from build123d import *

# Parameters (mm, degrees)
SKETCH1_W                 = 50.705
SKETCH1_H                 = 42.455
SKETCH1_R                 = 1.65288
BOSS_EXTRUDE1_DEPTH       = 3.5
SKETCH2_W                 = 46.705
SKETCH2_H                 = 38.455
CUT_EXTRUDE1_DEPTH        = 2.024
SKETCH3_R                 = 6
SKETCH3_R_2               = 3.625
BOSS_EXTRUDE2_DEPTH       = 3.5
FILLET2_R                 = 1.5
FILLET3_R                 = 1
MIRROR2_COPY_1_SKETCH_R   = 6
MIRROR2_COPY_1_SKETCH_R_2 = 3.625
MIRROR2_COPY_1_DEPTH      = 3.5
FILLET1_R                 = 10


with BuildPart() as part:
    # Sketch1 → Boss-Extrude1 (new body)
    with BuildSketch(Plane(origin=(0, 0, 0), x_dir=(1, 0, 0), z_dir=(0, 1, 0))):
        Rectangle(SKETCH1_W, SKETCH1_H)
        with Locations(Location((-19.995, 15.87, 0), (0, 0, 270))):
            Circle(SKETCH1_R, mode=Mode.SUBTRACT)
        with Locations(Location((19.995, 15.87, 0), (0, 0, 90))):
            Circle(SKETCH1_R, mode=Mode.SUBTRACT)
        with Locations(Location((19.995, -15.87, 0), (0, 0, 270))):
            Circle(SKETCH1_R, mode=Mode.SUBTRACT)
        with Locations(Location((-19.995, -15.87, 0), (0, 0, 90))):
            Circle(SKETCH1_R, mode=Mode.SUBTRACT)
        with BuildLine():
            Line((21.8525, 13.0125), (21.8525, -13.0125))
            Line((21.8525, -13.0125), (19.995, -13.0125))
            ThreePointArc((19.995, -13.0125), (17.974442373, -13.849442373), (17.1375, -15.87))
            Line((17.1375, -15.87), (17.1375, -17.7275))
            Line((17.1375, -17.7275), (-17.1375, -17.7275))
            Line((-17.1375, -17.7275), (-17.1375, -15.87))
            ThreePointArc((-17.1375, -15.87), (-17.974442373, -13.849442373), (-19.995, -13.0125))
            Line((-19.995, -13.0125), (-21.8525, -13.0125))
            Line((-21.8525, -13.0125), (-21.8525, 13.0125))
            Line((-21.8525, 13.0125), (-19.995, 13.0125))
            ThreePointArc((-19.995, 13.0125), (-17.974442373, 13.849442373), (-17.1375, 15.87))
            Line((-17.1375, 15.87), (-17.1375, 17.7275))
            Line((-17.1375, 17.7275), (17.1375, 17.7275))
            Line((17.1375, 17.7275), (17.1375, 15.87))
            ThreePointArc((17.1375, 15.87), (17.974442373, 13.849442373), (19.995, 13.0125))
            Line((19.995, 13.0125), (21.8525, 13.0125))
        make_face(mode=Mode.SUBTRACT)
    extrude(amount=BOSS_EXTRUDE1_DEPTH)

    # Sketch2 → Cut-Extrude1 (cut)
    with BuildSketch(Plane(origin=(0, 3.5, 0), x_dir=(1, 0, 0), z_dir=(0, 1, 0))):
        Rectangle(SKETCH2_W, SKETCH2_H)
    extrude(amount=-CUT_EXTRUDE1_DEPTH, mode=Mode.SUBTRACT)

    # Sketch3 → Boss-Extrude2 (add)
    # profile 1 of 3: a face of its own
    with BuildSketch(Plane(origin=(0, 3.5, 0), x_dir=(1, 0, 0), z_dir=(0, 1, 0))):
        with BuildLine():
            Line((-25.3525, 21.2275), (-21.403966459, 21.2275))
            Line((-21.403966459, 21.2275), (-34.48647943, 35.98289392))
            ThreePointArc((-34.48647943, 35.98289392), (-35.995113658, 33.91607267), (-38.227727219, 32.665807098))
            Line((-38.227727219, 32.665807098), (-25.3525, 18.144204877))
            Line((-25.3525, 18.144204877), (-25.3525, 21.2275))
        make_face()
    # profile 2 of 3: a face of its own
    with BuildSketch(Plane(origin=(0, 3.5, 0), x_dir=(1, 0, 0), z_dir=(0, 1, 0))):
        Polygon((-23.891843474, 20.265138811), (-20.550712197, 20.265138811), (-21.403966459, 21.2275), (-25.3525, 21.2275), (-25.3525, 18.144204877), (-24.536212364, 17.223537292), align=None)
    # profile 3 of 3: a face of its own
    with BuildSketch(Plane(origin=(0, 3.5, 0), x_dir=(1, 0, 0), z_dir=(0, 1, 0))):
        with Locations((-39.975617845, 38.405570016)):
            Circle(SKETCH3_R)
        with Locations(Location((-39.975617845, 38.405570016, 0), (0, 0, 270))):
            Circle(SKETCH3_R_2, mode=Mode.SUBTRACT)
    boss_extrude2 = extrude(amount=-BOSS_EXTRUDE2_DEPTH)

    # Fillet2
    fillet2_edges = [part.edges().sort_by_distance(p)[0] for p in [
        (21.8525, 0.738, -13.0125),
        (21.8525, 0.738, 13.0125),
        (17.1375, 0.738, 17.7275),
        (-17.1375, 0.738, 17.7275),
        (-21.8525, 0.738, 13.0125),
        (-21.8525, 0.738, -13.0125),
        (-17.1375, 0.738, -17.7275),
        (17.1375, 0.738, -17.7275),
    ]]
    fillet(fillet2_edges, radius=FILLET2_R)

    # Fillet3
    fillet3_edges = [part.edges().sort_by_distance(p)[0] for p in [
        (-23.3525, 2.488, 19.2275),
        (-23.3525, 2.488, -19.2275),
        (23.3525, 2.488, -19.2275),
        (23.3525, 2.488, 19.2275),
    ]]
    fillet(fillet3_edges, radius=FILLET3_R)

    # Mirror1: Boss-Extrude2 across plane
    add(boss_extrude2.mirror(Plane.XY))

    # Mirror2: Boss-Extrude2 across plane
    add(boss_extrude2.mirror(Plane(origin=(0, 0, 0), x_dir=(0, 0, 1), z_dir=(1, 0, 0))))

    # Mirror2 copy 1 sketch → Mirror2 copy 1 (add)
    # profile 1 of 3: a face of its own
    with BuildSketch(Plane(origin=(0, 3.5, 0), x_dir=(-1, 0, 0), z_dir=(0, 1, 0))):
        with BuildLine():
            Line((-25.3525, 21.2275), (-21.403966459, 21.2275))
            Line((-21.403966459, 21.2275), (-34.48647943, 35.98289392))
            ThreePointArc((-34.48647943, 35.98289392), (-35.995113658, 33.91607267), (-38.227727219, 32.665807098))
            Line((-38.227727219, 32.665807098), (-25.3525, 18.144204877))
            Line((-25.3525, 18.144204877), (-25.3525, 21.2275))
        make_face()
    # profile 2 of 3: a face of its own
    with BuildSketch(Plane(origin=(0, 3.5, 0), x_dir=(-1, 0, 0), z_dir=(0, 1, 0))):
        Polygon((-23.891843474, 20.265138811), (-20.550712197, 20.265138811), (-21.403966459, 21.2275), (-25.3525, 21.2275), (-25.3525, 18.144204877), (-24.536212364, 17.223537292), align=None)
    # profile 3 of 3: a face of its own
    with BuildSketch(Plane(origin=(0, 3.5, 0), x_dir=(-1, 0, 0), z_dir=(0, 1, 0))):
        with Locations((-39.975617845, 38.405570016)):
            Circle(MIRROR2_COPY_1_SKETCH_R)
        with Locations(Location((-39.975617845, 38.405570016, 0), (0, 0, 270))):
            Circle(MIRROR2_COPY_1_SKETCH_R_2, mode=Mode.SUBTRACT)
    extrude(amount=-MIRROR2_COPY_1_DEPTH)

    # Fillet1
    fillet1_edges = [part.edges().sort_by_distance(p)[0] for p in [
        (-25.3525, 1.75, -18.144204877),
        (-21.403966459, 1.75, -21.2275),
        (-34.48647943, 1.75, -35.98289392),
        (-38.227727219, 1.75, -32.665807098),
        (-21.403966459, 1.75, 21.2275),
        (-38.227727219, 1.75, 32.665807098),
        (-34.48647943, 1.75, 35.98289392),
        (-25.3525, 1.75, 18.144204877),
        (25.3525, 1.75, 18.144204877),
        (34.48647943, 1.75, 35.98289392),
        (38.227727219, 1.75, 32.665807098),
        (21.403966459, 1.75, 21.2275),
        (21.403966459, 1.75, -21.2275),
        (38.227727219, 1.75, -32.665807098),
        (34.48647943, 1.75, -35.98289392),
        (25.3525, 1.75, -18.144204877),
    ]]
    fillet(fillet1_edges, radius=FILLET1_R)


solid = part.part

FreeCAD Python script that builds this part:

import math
import FreeCAD as App
import Part
import Sketcher
from FreeCAD import Vector
Q = App.Units.Quantity


def edges_at(feature, points):
    """Names of the edges that pass closest to the given points."""
    edges = feature.Shape.Edges
    near = lambda p: min(range(len(edges)), key=lambda i: edges[i].distToShape(Part.Vertex(*p))[0])
    return sorted({f"Edge{near(p) + 1}" for p in points})


def add_polygon(sketch, points):
    """Adds a closed chain of lines whose ends are joined by coincident constraints."""
    first, n = sketch.GeometryCount, len(points)
    for a, b in zip(points, points[1:] + points[:1]):
        sketch.addGeometry(Part.LineSegment(App.Vector(*a, 0), App.Vector(*b, 0)), False)
    for i in range(n):
        sketch.addConstraint(Sketcher.Constraint("Coincident", first + i, 2, first + (i + 1) % n, 1))

doc = App.newDocument("Part")
params = doc.addObject("Spreadsheet::Sheet", "Params")
for row, (alias, value) in enumerate([
    ("pad1_length", "3.5 mm"),
    ("pocket1_length", "2.024 mm"),
    ("sketch3_radius", "6 mm"),
    ("sketch3_diameter", "7.25 mm"),
    ("pad2_length", "3.5 mm"),
    ("fillet_radius", "1.5 mm"),
    ("fillet2_radius", "1 mm"),
    ("sketch4_radius", "6 mm"),
    ("sketch4_diameter", "7.25 mm"),
    ("pad3_length", "3.5 mm"),
    ("fillet3_radius", "10 mm"),
], start=1):
    params.set(f"A{row}", alias)
    params.set(f"B{row}", "=" + value)
    params.setAlias(f"B{row}", alias)

body = doc.addObject("PartDesign::Body", "Body")

sketch1 = doc.addObject("Sketcher::SketchObject", "Sketch")
body.addObject(sketch1)
sketch1.AttachmentSupport = (doc.XZ_Plane, [""])
sketch1.MapMode = "FlatFace"
add_polygon(sketch1, [(-25.4, -21.2), (-25.4, 21.2), (25.4, 21.2), (25.4, -21.2)])
sketch1.addGeometry(Part.Circle(Vector(-20, 15.9, 0), Vector(0, 0, 1), 1.7), False)
sketch1.addGeometry(Part.Circle(Vector(20, 15.9, 0), Vector(0, 0, 1), 1.7), False)
sketch1.addGeometry(Part.Circle(Vector(-20, -15.9, 0), Vector(0, 0, 1), 1.7), False)
sketch1.addGeometry(Part.LineSegment(Vector(20, -13, 0), Vector(21.9, -13, 0)), False)
sketch1.addGeometry(Part.LineSegment(Vector(21.9, -13, 0), Vector(21.9, 13, 0)), False)
sketch1.addGeometry(Part.LineSegment(Vector(21.9, 13, 0), Vector(20, 13, 0)), False)
sketch1.addGeometry(Part.ArcOfCircle(Part.Circle(Vector(20, 15.9, 0), Vector(0, 0, 1), 2.9), math.radians(-180), math.radians(-90)), False)
sketch1.addGeometry(Part.LineSegment(Vector(17.1, 15.9, 0), Vector(17.1, 17.7, 0)), False)
sketch1.addGeometry(Part.LineSegment(Vector(17.1, 17.7, 0), Vector(-17.1, 17.7, 0)), False)
sketch1.addGeometry(Part.LineSegment(Vector(-17.1, 17.7, 0), Vector(-17.1, 15.9, 0)), False)
sketch1.addGeometry(Part.ArcOfCircle(Part.Circle(Vector(-20, 15.9, 0), Vector(0, 0, 1), 2.9), math.radians(-90), math.radians(0)), False)
sketch1.addGeometry(Part.LineSegment(Vector(-20, 13, 0), Vector(-21.9, 13, 0)), False)
sketch1.addGeometry(Part.LineSegment(Vector(-21.9, 13, 0), Vector(-21.9, -13, 0)), False)
sketch1.addGeometry(Part.LineSegment(Vector(-21.9, -13, 0), Vector(-20, -13, 0)), False)
sketch1.addGeometry(Part.ArcOfCircle(Part.Circle(Vector(-20, -15.9, 0), Vector(0, 0, 1), 2.9), math.radians(0), math.radians(90)), False)
sketch1.addGeometry(Part.LineSegment(Vector(-17.1, -15.9, 0), Vector(-17.1, -17.7, 0)), False)
sketch1.addGeometry(Part.LineSegment(Vector(-17.1, -17.7, 0), Vector(17.1, -17.7, 0)), False)
sketch1.addGeometry(Part.LineSegment(Vector(17.1, -17.7, 0), Vector(17.1, -15.9, 0)), False)
sketch1.addGeometry(Part.ArcOfCircle(Part.Circle(Vector(20, -15.9, 0), Vector(0, 0, 1), 2.9), math.radians(90), math.radians(180)), False)
sketch1.addGeometry(Part.Circle(Vector(20, -15.9, 0), Vector(0, 0, 1), 1.7), False)
sketch1.addConstraint([
    Sketcher.Constraint("Coincident", 7, 2, 8, 1),
    Sketcher.Constraint("Coincident", 8, 2, 9, 1),
    Sketcher.Constraint("Tangent", 9, 2, 10, 2),
    Sketcher.Constraint("Tangent", 10, 1, 11, 1),
    Sketcher.Constraint("Coincident", 11, 2, 12, 1),
    Sketcher.Constraint("Coincident", 12, 2, 13, 1),
    Sketcher.Constraint("Tangent", 13, 2, 14, 2),
    Sketcher.Constraint("Tangent", 14, 1, 15, 1),
    Sketcher.Constraint("Coincident", 15, 2, 16, 1),
    Sketcher.Constraint("Coincident", 16, 2, 17, 1),
    Sketcher.Constraint("Tangent", 17, 2, 18, 2),
    Sketcher.Constraint("Tangent", 18, 1, 19, 1),
    Sketcher.Constraint("Coincident", 19, 2, 20, 1),
    Sketcher.Constraint("Coincident", 20, 2, 21, 1),
    Sketcher.Constraint("Tangent", 21, 2, 22, 2),
    Sketcher.Constraint("Tangent", 22, 1, 7, 1),
    Sketcher.Constraint("Vertical", 0),
    Sketcher.Constraint("Horizontal", 1),
    Sketcher.Constraint("Vertical", 2),
    Sketcher.Constraint("Horizontal", 3),
    Sketcher.Constraint("Horizontal", 7),
    Sketcher.Constraint("Vertical", 8),
    Sketcher.Constraint("Horizontal", 9),
    Sketcher.Constraint("Vertical", 11),
    Sketcher.Constraint("Horizontal", 12),
    Sketcher.Constraint("Vertical", 13),
    Sketcher.Constraint("Horizontal", 15),
    Sketcher.Constraint("Vertical", 16),
    Sketcher.Constraint("Horizontal", 17),
    Sketcher.Constraint("Vertical", 19),
    Sketcher.Constraint("Horizontal", 20),
    Sketcher.Constraint("Vertical", 21),
    Sketcher.Constraint("Coincident", 10, 3, 5, 3),
    Sketcher.Constraint("Coincident", 14, 3, 4, 3),
    Sketcher.Constraint("Coincident", 18, 3, 6, 3),
    Sketcher.Constraint("Coincident", 23, 3, 22, 3),
    Sketcher.Constraint("Equal", 4, 5),
    Sketcher.Constraint("Equal", 5, 6),
    Sketcher.Constraint("Equal", 10, 14),
    Sketcher.Constraint("Equal", 14, 18),
    Sketcher.Constraint("Equal", 18, 22),
    Sketcher.Constraint("Equal", 6, 23),
    Sketcher.Constraint("Symmetric", 5, 3, 6, 3, -1, 1),
    Sketcher.Constraint("Symmetric", 4, 3, 22, 3, -1, 1),
    Sketcher.Constraint("Symmetric", 0, 2, 2, 2, -1, 1),
    Sketcher.Constraint("Symmetric", 4, 3, 5, 3, -2),
    Sketcher.Constraint("Equal", 9, 15),
    Sketcher.Constraint("Equal", 17, 11),
    Sketcher.Constraint("Equal", 13, 19),
    Sketcher.Constraint("Radius", 10, Q("2.8575 mm")),
    Sketcher.Constraint("DistanceX", 7, 2, 2, 2, Q("3.5 mm")),
    Sketcher.Constraint("DistanceY", 12, 2, 0, 2, Q("3.5 mm")),
    Sketcher.Constraint("Diameter", 4, Q("3.30576 mm")),
    Sketcher.Constraint("DistanceX", 1, 1, 1, 2, Q("50.705 mm")),
    Sketcher.Constraint("DistanceX", 12, 2, 12, 1, Q("34.275 mm")),
    Sketcher.Constraint("DistanceY", 0, 1, 0, 2, Q("42.455 mm")),
])
pad1 = doc.addObject("PartDesign::Pad", "Pad")
body.addObject(pad1)
pad1.Profile = sketch1
pad1.setExpression("Length", "Params.pad1_length")
pad1.Reversed = True

sketch2 = doc.addObject("Sketcher::SketchObject", "Sketch001")
body.addObject(sketch2)
sketch2.AttachmentSupport = (doc.XZ_Plane, [""])
sketch2.MapMode = "FlatFace"
sketch2.AttachmentOffset = App.Placement(Vector(0, 0, -3.5), App.Rotation())
add_polygon(sketch2, [(-23, -19), (-23, 19), (23, 19), (23, -19)])
sketch2.addConstraint([
    Sketcher.Constraint("Vertical", 0),
    Sketcher.Constraint("Horizontal", 1),
    Sketcher.Constraint("Vertical", 2),
    Sketcher.Constraint("Horizontal", 3),
    Sketcher.Constraint("Symmetric", 0, 2, 2, 2, -1, 1),
    Sketcher.Constraint("DistanceX", 1, 1, 1, 2, Q("46.705 mm")),
    Sketcher.Constraint("DistanceY", 0, 1, 0, 2, Q("38.455 mm")),
])
pocket1 = doc.addObject("PartDesign::Pocket", "Pocket")
body.addObject(pocket1)
pocket1.Profile = sketch2
pocket1.setExpression("Length", "Params.pocket1_length")
pocket1.Reversed = True

sketch3 = doc.addObject("Sketcher::SketchObject", "Sketch002")
body.addObject(sketch3)
sketch3.AttachmentSupport = (doc.XZ_Plane, [""])
sketch3.MapMode = "FlatFace"
sketch3.AttachmentOffset = App.Placement(Vector(0, 0, -3.5), App.Rotation())
sketch3.addGeometry([
    Part.LineSegment(Vector(-21.4, -21.2, 0), Vector(-34.5, -36, 0)),
    Part.ArcOfCircle(Part.Circle(Vector(-40, -38.4, 0), Vector(0, 0, 1), 6), math.radians(73), math.radians(384)),
    Part.LineSegment(Vector(-38.2, -32.7, 0), Vector(-25.4, -18.1, 0)),
    Part.LineSegment(Vector(-25.4, -18.1, 0), Vector(-24.5, -17.2, 0)),
    Part.LineSegment(Vector(-24.5, -17.2, 0), Vector(-23.9, -20.3, 0)),
    Part.LineSegment(Vector(-23.9, -20.3, 0), Vector(-20.6, -20.3, 0)),
    Part.LineSegment(Vector(-20.6, -20.3, 0), Vector(-21.4, -21.2, 0)),
    Part.Circle(Vector(-40, -38.4, 0), Vector(0, 0, 1), 3.6),
], False)
sketch3.addConstraint([
    Sketcher.Constraint("Coincident", 0, 2, 1, 2),
    Sketcher.Constraint("Coincident", 1, 1, 2, 1),
    Sketcher.Constraint("Coincident", 2, 2, 3, 1),
    Sketcher.Constraint("Coincident", 3, 2, 4, 1),
    Sketcher.Constraint("Coincident", 4, 2, 5, 1),
    Sketcher.Constraint("Coincident", 5, 2, 6, 1),
    Sketcher.Constraint("Coincident", 6, 2, 0, 1),
    Sketcher.Constraint("Horizontal", 5),
    Sketcher.Constraint("Coincident", 7, 3, 1, 3),
    Sketcher.Constraint("Parallel", 0, 2),
    Sketcher.Constraint("Parallel", 2, 3),
    Sketcher.Constraint("Parallel", 3, 6),
    Sketcher.Constraint("Radius", 1, Q("6 mm")),
    Sketcher.Constraint("Diameter", 7, Q("7.25 mm")),
    Sketcher.Constraint("DistanceX", 5, 1, 5, 2, Q("3.341131 mm")),
    Sketcher.Constraint("DistanceX", 2, 2, -1, 1, Q("25.3525 mm")),
    Sketcher.Constraint("DistanceY", 6, 2, -1, 1, Q("21.2275 mm")),
    Sketcher.Constraint("DistanceY", 4, 2, 3, 2, Q("3.041602 mm")),
    Sketcher.Constraint("DistanceX", 3, 2, 5, 2, Q("3.9855 mm")),
    Sketcher.Constraint("Distance", 2, Q("19.407432 mm")),
    Sketcher.Constraint("Distance", 3, Q("1.230429 mm")),
    Sketcher.Constraint("Distance", 6, Q("1.28615 mm")),
    Sketcher.Constraint("DistanceY", 1, 3, -1, 1, Q("38.40557 mm")),
    Sketcher.Constraint("DistanceX", 0, 2, -1, 1, Q("34.486479 mm")),
])
sketch3.setExpression("Constraints[12]", "Params.sketch3_radius")
sketch3.setExpression("Constraints[13]", "Params.sketch3_diameter")
pad2 = doc.addObject("PartDesign::Pad", "Pad001")
body.addObject(pad2)
pad2.Profile = sketch3
pad2.setExpression("Length", "Params.pad2_length")
doc.recompute()

fillet = doc.addObject("PartDesign::Fillet", "Fillet")
body.addObject(fillet)
fillet.Base = (pad2, edges_at(pad2, [
    (21.852, 0.738, -13.012),
    (21.852, 0.738, 13.012),
    (17.137, 0.738, 17.727),
    (-17.137, 0.738, 17.727),
    (-21.852, 0.738, 13.012),
    (-21.852, 0.738, -13.012),
    (-17.137, 0.738, -17.727),
    (17.137, 0.738, -17.727),
]))
fillet.setExpression("Radius", "Params.fillet_radius")
doc.recompute()

fillet2 = doc.addObject("PartDesign::Fillet", "Fillet001")
body.addObject(fillet2)
fillet2.Base = (fillet, edges_at(fillet, [
    (-23.352, 2.488, 19.227),
    (-23.352, 2.488, -19.227),
    (23.352, 2.488, -19.227),
    (23.352, 2.488, 19.227),
]))
fillet2.setExpression("Radius", "Params.fillet2_radius")
doc.recompute()

mirrored = doc.addObject("PartDesign::Mirrored", "Mirrored")
body.addObject(mirrored)
mirrored.Originals = [pad2]
mirrored.MirrorPlane = (doc.XY_Plane, [""])
body.Tip = mirrored
doc.recompute()

mirrored2 = doc.addObject("PartDesign::Mirrored", "Mirrored001")
body.addObject(mirrored2)
mirrored2.Originals = [pad2]
mirrored2.MirrorPlane = (doc.YZ_Plane, [""])
body.Tip = mirrored2

sketch4 = doc.addObject("Sketcher::SketchObject", "Sketch003")
body.addObject(sketch4)
sketch4.AttachmentSupport = (doc.XZ_Plane, [""])
sketch4.MapMode = "FlatFace"
sketch4.AttachmentOffset = App.Placement(Vector(0, 0, -3.5), App.Rotation())
sketch4.addGeometry([
    Part.LineSegment(Vector(21.4, 21.2, 0), Vector(34.5, 36, 0)),
    Part.ArcOfCircle(Part.Circle(Vector(40, 38.4, 0), Vector(0, 0, 1), 6), math.radians(-107), math.radians(204)),
    Part.LineSegment(Vector(38.2, 32.7, 0), Vector(25.4, 18.1, 0)),
    Part.LineSegment(Vector(25.4, 18.1, 0), Vector(24.5, 17.2, 0)),
    Part.LineSegment(Vector(24.5, 17.2, 0), Vector(23.9, 20.3, 0)),
    Part.LineSegment(Vector(23.9, 20.3, 0), Vector(20.6, 20.3, 0)),
    Part.LineSegment(Vector(20.6, 20.3, 0), Vector(21.4, 21.2, 0)),
    Part.Circle(Vector(40, 38.4, 0), Vector(0, 0, 1), 3.6),
], False)
sketch4.addConstraint([
    Sketcher.Constraint("Coincident", 0, 2, 1, 2),
    Sketcher.Constraint("Coincident", 1, 1, 2, 1),
    Sketcher.Constraint("Coincident", 2, 2, 3, 1),
    Sketcher.Constraint("Coincident", 3, 2, 4, 1),
    Sketcher.Constraint("Coincident", 4, 2, 5, 1),
    Sketcher.Constraint("Coincident", 5, 2, 6, 1),
    Sketcher.Constraint("Coincident", 6, 2, 0, 1),
    Sketcher.Constraint("Horizontal", 5),
    Sketcher.Constraint("Coincident", 7, 3, 1, 3),
    Sketcher.Constraint("Parallel", 0, 2),
    Sketcher.Constraint("Parallel", 2, 3),
    Sketcher.Constraint("Parallel", 3, 6),
    Sketcher.Constraint("Radius", 1, Q("6 mm")),
    Sketcher.Constraint("Diameter", 7, Q("7.25 mm")),
    Sketcher.Constraint("DistanceX", 5, 2, 5, 1, Q("3.341131 mm")),
    Sketcher.Constraint("DistanceX", -1, 1, 2, 2, Q("25.3525 mm")),
    Sketcher.Constraint("DistanceY", -1, 1, 6, 2, Q("21.2275 mm")),
    Sketcher.Constraint("DistanceY", 3, 2, 4, 2, Q("3.041602 mm")),
    Sketcher.Constraint("DistanceX", 5, 2, 3, 2, Q("3.9855 mm")),
    Sketcher.Constraint("Distance", 2, Q("19.407432 mm")),
    Sketcher.Constraint("Distance", 3, Q("1.230429 mm")),
    Sketcher.Constraint("Distance", 6, Q("1.28615 mm")),
    Sketcher.Constraint("DistanceY", -1, 1, 1, 3, Q("38.40557 mm")),
    Sketcher.Constraint("DistanceX", -1, 1, 0, 2, Q("34.486479 mm")),
])
sketch4.setExpression("Constraints[12]", "Params.sketch4_radius")
sketch4.setExpression("Constraints[13]", "Params.sketch4_diameter")
pad3 = doc.addObject("PartDesign::Pad", "Pad002")
body.addObject(pad3)
pad3.Profile = sketch4
pad3.setExpression("Length", "Params.pad3_length")
doc.recompute()

fillet3 = doc.addObject("PartDesign::Fillet", "Fillet002")
body.addObject(fillet3)
fillet3.Base = (pad3, edges_at(pad3, [
    (-25.352, 1.75, -18.144),
    (-21.404, 1.75, -21.227),
    (-34.486, 1.75, -35.983),
    (-38.228, 1.75, -32.666),
    (-21.404, 1.75, 21.227),
    (-38.228, 1.75, 32.666),
    (-34.486, 1.75, 35.983),
    (-25.352, 1.75, 18.144),
    (25.352, 1.75, 18.144),
    (34.486, 1.75, 35.983),
    (38.228, 1.75, 32.666),
    (21.404, 1.75, 21.227),
    (21.404, 1.75, -21.227),
    (38.228, 1.75, -32.666),
    (34.486, 1.75, -35.983),
    (25.352, 1.75, -18.144),
]))
fillet3.setExpression("Radius", "Params.fillet3_radius")

doc.recompute()
